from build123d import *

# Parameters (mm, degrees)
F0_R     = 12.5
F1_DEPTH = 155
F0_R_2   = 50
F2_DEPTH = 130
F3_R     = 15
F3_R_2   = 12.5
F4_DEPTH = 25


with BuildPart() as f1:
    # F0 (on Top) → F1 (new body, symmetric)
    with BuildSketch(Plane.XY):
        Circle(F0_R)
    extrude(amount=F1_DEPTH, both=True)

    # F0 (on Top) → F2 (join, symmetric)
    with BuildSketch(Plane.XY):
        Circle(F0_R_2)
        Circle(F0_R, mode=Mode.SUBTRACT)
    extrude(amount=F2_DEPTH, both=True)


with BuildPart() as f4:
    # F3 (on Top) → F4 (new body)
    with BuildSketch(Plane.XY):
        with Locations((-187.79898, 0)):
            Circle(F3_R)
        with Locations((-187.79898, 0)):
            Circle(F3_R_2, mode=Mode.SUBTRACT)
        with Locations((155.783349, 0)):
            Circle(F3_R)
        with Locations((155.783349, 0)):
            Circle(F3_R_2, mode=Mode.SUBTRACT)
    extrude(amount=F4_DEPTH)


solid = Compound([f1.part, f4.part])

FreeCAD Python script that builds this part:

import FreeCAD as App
import Part
import Sketcher
from FreeCAD import Vector

doc = App.newDocument("Part")
body = doc.addObject("PartDesign::Body", "Body")

sketch1 = body.newObject("Sketcher::SketchObject", "Sketch")
sketch1.AttachmentSupport = (doc.getObject("XY_Plane"), [""])
sketch1.MapMode = "FlatFace"
sketch1.addGeometry(Part.Circle(Vector(0, 0, 0), Vector(0, 0, 1), 12), False)
sketch1.addConstraint([
    Sketcher.Constraint("Coincident", 0, 3, -1, 1),
    Sketcher.Constraint("Diameter", 0, 25.0),
])
pad1 = body.newObject("PartDesign::Pad", "Pad")
pad1.Profile = sketch1
pad1.Length = 310
pad1.Midplane = True

sketch2 = body.newObject("Sketcher::SketchObject", "Sketch001")
sketch2.AttachmentSupport = (doc.getObject("XY_Plane"), [""])
sketch2.MapMode = "FlatFace"
sketch2.addGeometry([
    Part.Circle(Vector(0, 0, 0), Vector(0, 0, 1), 50),
    Part.Circle(Vector(0, 0, 0), Vector(0, 0, 1), 12),
], False)
sketch2.addConstraint([
    Sketcher.Constraint("Coincident", 0, 3, -1, 1),
    Sketcher.Constraint("Coincident", 1, 3, -1, 1),
    Sketcher.Constraint("Diameter", 0, 100.0),
    Sketcher.Constraint("Diameter", 1, 25.0),
])
pad2 = body.newObject("PartDesign::Pad", "Pad001")
pad2.Profile = sketch2
pad2.Length = 260
pad2.Midplane = True
body2 = doc.addObject("PartDesign::Body", "Body001")
body2.AllowCompound = True

sketch3 = body2.newObject("Sketcher::SketchObject", "Sketch002")
sketch3.AttachmentSupport = (doc.getObject("XY_Plane001"), [""])
sketch3.MapMode = "FlatFace"
sketch3.addGeometry([
    Part.Circle(Vector(-188, 0, 0), Vector(0, 0, 1), 15),
    Part.Circle(Vector(-188, 0, 0), Vector(0, 0, 1), 12),
    Part.Circle(Vector(156, 0, 0), Vector(0, 0, 1), 15),
    Part.Circle(Vector(156, 0, 0), Vector(0, 0, 1), 12),
], False)
sketch3.addConstraint([
    Sketcher.Constraint("Coincident", 1, 3, 0, 3),
    Sketcher.Constraint("Coincident", 3, 3, 2, 3),
    Sketcher.Constraint("Equal", 0, 2),
    Sketcher.Constraint("Equal", 1, 3),
    Sketcher.Constraint("PointOnObject", 0, 3, -1),
    Sketcher.Constraint("PointOnObject", 2, 3, -1),
    Sketcher.Constraint("Diameter", 0, 30.0),
    Sketcher.Constraint("Diameter", 1, 25.0),
    Sketcher.Constraint("DistanceX", 0, 3, -1, 1, 187.79898),
    Sketcher.Constraint("DistanceX", -1, 1, 2, 3, 155.783349),
])
pad3 = body2.newObject("PartDesign::Pad", "Pad002")
pad3.Profile = sketch3
pad3.Length = 25

doc.recompute()
